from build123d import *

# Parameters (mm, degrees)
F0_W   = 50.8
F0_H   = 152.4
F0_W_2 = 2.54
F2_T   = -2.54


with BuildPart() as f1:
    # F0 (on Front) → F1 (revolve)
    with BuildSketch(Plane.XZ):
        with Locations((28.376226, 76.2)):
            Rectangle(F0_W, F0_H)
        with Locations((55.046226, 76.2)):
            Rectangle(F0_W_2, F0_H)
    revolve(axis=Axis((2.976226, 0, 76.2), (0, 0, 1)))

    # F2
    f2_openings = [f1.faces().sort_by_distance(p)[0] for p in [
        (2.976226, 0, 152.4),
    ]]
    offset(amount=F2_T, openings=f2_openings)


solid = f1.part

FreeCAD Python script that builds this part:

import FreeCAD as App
import Part
import Sketcher
from FreeCAD import Vector
Q = App.Units.Quantity


def faces_at(feature, points):
    """Names of the faces that lie closest to the given points."""
    faces = feature.Shape.Faces
    near = lambda p: min(range(len(faces)), key=lambda i: faces[i].distToShape(Part.Vertex(*p))[0])
    return sorted({f"Face{near(p) + 1}" for p in points})

doc = App.newDocument("Part")
body = doc.addObject("PartDesign::Body", "Body")

sketch1 = body.newObject("Sketcher::SketchObject", "Sketch")
sketch1.AttachmentSupport = (doc.getObject("XZ_Plane"), [""])
sketch1.MapMode = "FlatFace"
sketch1.addGeometry(Part.LineSegment(Vector(2.976226, 152.4, 0), Vector(2.976226, 0, 0)), False)
sketch1.addGeometry(Part.LineSegment(Vector(2.976226, 0, 0), Vector(56.316226, 0, 0)), False)
sketch1.addGeometry(Part.LineSegment(Vector(56.316226, 0, 0), Vector(56.316226, 152.4, 0)), False)
sketch1.addGeometry(Part.LineSegment(Vector(56.316226, 152.4, 0), Vector(2.976226, 152.4, 0)), False)
sketch1.addGeometry(Part.LineSegment(Vector(2.976226, 0, 0), Vector(2.976226, 152.4, 0)), True)
sketch1.addConstraint(Sketcher.Constraint("Coincident", 0, 2, 1, 1))
sketch1.addConstraint(Sketcher.Constraint("Coincident", 1, 2, 2, 1))
sketch1.addConstraint(Sketcher.Constraint("Coincident", 2, 2, 3, 1))
sketch1.addConstraint(Sketcher.Constraint("Coincident", 3, 2, 0, 1))
sketch1.addConstraint(Sketcher.Constraint("Vertical", 0))
sketch1.addConstraint(Sketcher.Constraint("Horizontal", 1))
sketch1.addConstraint(Sketcher.Constraint("Vertical", 2))
sketch1.addConstraint(Sketcher.Constraint("Horizontal", 3))
sketch1.addConstraint(Sketcher.Constraint("Vertical", 4))
sketch1.addConstraint(Sketcher.Constraint("Coincident", 4, 1, 0, 2))
sketch1.addConstraint(Sketcher.Constraint("PointOnObject", 0, 2, -1))
sketch1.addConstraint(Sketcher.Constraint("Horizontal", 2, 2, 4, 2))
sketch1.addConstraint(Sketcher.Constraint("DistanceY", 0, 2, 0, 1, Q("6 in")))
sketch1.addConstraint(Sketcher.Constraint("DistanceX", 1, 1, 1, 2, Q("2.1 in")))
sketch1.addConstraint(Sketcher.Constraint("DistanceX", -1, 1, 0, 2, 2.976226))
revolution = body.newObject("PartDesign::Revolution", "Revolution")
revolution.Profile = sketch1
revolution.ReferenceAxis = (sketch1, ["Axis0"])
revolution.Angle = 360
doc.recompute()

thickness = body.newObject("PartDesign::Thickness", "Thickness")
thickness.Base = (revolution, faces_at(revolution, [(2.976, 0, 152.4)]))
thickness.Value = Q("0.1 in")
thickness.Reversed = True
thickness.Join = "Arc"

doc.recompute()
